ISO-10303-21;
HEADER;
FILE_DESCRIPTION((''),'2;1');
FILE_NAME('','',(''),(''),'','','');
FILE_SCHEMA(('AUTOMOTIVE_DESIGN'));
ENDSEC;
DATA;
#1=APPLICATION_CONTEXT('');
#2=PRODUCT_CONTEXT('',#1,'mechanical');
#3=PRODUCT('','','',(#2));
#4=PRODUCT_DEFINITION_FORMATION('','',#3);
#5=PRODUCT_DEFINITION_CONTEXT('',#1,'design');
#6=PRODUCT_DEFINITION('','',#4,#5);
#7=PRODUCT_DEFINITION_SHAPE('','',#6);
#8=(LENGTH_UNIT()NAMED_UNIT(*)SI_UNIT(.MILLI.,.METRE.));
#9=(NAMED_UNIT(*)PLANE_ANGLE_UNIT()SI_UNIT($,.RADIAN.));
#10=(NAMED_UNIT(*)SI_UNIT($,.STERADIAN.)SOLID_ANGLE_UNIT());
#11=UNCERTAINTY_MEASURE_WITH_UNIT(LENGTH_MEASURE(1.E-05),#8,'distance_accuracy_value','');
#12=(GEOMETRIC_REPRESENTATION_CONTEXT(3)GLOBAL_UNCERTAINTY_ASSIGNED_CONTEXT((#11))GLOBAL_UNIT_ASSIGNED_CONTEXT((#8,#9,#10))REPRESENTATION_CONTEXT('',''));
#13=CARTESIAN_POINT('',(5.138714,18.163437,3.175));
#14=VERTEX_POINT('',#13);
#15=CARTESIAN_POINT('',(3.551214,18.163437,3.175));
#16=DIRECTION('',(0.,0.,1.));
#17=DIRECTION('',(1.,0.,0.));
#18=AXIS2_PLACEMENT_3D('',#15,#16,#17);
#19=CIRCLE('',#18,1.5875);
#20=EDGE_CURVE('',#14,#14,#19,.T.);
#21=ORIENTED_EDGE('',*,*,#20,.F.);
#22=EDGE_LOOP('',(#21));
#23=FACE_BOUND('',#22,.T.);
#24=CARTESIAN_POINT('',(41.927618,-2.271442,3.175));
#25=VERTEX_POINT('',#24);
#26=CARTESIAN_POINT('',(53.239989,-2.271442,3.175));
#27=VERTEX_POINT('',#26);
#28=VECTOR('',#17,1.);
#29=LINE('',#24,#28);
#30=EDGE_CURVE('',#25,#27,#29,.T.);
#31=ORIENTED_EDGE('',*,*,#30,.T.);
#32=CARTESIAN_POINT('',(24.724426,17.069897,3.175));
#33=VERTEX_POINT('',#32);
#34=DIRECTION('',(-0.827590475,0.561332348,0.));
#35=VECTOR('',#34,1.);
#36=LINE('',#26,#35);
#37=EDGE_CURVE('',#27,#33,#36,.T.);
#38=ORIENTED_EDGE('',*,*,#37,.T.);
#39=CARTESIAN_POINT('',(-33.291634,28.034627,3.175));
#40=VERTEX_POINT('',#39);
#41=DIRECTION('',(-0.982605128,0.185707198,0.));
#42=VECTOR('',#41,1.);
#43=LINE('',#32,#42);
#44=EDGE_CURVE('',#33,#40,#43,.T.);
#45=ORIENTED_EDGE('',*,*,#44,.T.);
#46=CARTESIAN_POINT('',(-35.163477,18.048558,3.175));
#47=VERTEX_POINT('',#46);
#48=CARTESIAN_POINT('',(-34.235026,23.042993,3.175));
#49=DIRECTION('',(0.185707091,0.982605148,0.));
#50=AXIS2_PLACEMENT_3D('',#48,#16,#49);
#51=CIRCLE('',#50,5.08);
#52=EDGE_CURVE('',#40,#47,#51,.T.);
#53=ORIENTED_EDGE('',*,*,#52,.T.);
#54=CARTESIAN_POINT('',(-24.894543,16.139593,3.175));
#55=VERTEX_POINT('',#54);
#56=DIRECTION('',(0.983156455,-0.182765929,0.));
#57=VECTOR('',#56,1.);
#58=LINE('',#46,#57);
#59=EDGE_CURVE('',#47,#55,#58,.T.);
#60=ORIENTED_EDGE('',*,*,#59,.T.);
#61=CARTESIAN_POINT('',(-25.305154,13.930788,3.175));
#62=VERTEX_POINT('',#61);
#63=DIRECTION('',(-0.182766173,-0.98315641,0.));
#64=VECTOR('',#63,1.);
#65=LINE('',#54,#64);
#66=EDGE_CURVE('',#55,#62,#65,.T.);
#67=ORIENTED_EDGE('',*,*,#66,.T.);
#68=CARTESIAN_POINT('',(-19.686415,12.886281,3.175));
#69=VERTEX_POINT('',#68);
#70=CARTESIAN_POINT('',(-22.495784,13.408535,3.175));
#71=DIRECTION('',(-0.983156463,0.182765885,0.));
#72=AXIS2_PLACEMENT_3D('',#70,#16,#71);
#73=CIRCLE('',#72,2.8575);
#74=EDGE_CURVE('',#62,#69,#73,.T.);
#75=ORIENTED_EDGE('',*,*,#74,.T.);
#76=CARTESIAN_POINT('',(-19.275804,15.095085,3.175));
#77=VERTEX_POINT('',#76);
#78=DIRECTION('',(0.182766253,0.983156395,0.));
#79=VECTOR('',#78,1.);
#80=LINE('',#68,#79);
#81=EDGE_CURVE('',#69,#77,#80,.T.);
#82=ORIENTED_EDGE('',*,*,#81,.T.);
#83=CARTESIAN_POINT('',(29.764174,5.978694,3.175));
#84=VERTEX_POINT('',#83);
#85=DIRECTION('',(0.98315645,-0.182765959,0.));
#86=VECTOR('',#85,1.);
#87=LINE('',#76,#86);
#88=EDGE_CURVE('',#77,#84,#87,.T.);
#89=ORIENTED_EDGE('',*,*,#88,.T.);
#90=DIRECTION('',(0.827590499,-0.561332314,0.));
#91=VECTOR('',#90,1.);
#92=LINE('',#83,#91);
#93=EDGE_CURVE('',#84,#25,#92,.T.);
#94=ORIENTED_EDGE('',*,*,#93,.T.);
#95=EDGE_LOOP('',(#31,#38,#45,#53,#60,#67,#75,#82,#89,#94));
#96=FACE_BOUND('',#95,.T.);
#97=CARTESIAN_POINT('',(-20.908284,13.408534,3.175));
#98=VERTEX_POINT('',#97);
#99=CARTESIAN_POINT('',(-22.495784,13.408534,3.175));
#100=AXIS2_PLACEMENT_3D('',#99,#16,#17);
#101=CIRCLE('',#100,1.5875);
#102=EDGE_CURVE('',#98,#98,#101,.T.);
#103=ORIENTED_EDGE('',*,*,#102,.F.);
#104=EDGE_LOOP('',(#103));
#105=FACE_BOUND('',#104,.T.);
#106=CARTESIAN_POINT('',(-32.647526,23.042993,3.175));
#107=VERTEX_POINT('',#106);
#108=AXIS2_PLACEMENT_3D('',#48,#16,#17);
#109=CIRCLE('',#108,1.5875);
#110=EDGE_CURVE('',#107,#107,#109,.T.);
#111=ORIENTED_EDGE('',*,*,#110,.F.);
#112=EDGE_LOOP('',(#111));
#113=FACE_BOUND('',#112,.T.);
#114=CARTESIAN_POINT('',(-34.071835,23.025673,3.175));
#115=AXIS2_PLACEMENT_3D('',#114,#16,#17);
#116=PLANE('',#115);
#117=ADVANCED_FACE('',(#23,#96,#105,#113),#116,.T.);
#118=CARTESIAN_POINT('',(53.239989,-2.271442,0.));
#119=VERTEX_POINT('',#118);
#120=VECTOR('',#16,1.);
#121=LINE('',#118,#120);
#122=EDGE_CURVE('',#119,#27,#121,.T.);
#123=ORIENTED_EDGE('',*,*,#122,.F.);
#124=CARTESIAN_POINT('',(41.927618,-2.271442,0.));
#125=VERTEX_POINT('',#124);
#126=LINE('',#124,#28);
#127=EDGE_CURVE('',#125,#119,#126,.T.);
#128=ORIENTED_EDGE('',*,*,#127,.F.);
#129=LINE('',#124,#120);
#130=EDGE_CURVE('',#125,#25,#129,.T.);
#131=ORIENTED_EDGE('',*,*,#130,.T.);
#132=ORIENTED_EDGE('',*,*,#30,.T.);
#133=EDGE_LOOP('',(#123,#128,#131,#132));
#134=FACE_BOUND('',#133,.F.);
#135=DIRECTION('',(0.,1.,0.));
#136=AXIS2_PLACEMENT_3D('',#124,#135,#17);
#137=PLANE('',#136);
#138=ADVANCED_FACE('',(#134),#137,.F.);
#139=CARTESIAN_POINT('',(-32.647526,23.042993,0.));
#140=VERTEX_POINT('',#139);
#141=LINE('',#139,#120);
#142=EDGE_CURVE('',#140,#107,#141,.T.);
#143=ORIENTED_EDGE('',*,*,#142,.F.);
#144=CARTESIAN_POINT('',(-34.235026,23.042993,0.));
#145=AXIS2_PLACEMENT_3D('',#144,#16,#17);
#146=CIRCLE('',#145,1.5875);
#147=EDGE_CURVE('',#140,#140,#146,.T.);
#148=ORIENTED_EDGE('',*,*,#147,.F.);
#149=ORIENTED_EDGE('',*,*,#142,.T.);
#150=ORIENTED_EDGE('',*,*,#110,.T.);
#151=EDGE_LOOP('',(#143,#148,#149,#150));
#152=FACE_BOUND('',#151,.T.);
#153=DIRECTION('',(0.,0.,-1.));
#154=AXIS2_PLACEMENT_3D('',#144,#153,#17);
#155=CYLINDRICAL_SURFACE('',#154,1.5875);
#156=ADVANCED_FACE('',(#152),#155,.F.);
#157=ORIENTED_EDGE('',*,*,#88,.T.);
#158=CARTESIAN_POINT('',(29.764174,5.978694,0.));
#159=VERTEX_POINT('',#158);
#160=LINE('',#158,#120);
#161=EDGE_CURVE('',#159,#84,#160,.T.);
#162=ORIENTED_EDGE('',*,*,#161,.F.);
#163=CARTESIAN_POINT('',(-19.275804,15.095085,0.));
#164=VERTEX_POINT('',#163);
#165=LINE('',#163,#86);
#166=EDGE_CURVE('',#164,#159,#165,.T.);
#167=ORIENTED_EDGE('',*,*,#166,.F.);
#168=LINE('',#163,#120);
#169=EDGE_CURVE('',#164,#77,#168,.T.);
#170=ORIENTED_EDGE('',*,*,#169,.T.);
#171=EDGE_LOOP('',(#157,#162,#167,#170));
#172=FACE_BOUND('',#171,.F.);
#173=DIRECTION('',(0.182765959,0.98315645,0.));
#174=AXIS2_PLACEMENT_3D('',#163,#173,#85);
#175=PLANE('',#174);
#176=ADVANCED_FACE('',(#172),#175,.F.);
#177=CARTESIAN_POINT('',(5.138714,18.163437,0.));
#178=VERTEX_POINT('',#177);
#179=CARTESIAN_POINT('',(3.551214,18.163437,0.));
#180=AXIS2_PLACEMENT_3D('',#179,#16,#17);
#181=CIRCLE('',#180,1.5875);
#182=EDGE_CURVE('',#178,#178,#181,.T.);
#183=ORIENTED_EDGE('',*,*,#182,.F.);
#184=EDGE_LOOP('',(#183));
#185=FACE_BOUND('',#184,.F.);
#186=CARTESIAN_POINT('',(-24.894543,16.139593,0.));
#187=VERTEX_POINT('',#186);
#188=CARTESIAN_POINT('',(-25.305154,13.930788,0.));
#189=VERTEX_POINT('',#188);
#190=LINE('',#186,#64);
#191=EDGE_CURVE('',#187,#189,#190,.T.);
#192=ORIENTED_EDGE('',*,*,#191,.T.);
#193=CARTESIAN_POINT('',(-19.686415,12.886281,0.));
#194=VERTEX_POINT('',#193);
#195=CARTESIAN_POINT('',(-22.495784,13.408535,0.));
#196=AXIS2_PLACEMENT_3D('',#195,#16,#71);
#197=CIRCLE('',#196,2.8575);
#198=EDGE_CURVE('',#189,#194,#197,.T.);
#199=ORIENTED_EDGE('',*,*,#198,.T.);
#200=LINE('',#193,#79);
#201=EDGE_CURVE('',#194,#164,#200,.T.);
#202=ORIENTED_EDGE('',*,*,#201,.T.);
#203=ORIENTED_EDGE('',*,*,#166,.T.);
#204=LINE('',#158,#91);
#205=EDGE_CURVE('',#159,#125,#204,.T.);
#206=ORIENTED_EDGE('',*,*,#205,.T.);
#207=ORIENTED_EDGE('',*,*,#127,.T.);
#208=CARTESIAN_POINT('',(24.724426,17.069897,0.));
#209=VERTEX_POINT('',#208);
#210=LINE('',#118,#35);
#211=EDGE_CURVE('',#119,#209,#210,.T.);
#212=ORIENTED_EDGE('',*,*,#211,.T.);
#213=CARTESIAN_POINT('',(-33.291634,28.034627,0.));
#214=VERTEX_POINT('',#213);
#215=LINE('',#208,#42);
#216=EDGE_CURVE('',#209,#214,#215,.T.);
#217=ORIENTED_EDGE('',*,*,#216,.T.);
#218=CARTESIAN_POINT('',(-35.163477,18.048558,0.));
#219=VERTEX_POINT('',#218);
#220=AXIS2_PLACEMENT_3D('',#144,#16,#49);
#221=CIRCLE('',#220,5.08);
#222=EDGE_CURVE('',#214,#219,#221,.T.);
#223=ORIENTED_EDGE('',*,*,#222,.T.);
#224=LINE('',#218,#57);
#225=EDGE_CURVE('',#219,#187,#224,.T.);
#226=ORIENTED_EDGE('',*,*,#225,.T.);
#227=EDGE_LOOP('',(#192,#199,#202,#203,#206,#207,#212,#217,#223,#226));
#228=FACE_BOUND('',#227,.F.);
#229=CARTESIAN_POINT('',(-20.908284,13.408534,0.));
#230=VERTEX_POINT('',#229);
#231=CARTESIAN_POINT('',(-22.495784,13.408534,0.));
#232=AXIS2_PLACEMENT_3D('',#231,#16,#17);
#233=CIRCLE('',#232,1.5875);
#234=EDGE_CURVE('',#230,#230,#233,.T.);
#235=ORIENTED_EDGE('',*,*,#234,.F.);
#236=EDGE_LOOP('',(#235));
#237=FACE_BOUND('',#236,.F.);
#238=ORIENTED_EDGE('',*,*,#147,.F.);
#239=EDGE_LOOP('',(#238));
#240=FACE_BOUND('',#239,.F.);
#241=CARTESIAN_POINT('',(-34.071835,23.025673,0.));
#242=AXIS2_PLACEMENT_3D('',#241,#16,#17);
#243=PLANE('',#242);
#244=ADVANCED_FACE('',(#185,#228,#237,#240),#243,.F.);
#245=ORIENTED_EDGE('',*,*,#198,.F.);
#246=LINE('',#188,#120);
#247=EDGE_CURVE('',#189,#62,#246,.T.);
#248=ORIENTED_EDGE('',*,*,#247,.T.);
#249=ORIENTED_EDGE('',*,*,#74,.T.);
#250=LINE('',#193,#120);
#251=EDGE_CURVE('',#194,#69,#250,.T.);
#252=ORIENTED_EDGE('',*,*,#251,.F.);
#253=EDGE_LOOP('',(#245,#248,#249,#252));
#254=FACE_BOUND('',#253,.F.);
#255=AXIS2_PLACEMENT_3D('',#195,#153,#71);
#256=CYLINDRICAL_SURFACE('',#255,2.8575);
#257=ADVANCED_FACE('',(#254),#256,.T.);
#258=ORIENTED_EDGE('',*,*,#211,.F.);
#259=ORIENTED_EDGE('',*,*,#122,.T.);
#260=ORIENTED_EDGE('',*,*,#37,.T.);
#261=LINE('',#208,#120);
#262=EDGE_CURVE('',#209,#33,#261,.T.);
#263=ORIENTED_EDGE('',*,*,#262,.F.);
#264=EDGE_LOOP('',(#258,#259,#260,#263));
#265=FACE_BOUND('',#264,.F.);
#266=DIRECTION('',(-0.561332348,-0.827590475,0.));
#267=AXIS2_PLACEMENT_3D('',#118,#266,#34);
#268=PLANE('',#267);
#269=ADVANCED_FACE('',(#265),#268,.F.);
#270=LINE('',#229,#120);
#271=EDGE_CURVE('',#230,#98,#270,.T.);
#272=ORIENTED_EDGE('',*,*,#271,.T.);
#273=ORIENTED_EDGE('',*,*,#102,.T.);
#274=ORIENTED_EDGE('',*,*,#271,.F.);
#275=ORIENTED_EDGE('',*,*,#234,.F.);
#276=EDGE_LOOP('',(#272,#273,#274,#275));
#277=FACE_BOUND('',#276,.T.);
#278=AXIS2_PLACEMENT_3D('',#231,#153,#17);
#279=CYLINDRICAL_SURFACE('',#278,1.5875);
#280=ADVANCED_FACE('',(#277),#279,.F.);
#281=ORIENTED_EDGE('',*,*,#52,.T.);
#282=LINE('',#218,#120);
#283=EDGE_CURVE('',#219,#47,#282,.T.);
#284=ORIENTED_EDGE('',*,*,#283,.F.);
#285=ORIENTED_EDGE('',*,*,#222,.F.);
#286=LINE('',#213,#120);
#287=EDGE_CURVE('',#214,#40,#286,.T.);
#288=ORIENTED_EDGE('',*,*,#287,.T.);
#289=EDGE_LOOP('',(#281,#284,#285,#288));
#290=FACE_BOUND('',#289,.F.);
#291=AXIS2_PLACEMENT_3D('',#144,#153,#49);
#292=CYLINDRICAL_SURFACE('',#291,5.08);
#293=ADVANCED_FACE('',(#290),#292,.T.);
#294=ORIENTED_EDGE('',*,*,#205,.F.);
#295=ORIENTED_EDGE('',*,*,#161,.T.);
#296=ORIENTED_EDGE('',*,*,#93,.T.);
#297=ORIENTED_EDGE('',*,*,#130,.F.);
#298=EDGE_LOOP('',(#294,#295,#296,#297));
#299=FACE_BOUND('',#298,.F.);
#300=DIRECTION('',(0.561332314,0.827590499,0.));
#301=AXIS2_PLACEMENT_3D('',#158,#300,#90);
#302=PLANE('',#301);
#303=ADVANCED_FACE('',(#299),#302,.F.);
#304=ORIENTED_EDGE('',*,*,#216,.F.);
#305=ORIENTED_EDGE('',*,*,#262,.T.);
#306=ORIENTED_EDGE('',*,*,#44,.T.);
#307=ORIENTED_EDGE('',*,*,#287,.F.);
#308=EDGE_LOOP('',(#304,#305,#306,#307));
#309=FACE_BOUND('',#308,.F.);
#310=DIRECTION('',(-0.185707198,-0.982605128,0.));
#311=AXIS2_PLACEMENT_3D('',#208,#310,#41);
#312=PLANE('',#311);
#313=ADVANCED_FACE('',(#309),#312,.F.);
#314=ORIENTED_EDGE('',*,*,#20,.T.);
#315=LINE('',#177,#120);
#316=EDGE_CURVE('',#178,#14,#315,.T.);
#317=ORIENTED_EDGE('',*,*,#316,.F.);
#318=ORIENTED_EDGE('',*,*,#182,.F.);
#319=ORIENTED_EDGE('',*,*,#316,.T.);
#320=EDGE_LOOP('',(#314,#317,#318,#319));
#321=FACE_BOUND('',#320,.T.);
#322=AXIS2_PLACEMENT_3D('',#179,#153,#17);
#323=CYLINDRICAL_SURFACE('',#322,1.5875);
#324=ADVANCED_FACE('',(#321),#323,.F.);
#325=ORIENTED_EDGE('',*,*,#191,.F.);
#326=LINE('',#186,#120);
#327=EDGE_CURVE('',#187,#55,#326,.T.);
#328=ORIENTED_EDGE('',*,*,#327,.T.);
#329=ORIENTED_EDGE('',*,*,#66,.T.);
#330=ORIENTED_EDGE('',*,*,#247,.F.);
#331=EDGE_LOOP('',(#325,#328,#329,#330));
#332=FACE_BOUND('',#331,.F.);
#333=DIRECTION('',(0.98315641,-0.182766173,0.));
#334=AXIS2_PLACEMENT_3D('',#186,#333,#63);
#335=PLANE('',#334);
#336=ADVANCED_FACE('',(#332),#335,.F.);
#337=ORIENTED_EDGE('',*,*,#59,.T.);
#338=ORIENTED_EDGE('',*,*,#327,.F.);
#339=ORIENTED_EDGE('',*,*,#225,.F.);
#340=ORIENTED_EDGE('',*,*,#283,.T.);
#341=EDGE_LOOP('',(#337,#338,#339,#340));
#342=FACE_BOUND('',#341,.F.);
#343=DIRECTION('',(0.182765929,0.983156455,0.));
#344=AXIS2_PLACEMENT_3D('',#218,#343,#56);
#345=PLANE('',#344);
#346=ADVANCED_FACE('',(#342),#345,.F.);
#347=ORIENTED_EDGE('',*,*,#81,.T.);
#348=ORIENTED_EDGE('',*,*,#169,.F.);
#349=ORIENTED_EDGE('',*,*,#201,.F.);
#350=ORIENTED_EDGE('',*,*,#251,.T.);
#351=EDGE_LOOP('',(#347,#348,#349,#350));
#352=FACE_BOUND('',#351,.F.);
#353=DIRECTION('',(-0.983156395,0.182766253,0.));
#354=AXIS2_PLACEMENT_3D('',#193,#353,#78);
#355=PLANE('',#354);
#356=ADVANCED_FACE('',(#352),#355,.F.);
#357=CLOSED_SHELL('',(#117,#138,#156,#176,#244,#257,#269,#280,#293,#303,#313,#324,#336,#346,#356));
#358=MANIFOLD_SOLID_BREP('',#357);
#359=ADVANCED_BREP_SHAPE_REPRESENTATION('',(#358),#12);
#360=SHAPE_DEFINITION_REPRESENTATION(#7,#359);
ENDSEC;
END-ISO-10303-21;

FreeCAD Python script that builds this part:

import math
import FreeCAD as App
import Part
import Sketcher

V = App.Vector
Q = App.Units.Quantity

doc = App.newDocument("Part")
body = doc.addObject("PartDesign::Body", "Body")

sketch1 = doc.addObject("Sketcher::SketchObject", "Sketch")
body.addObject(sketch1)
sketch1.AttachmentSupport = (doc.XY_Plane, [""])
sketch1.MapMode = "FlatFace"
sketch1.addGeometry([
    Part.ArcOfCircle(Part.Circle(V(-34.235026, 23.042993, 0), V(0, 0, 1), 5.08), math.radians(79.29764), math.radians(259.469091)),
    Part.LineSegment(V(-35.163477, 18.048558, 0), V(-24.894543, 16.139593, 0)),
    Part.LineSegment(V(-24.894543, 16.139593, 0), V(-25.305154, 13.930788, 0)),
    Part.ArcOfCircle(Part.Circle(V(-22.495784, 13.408535, 0), V(0, 0, 1), 2.8575), math.radians(169.469094), math.radians(349.469094)),
    Part.LineSegment(V(-19.686415, 12.886281, 0), V(-19.275804, 15.095085, 0)),
    Part.LineSegment(V(-19.275804, 15.095085, 0), V(29.764174, 5.978694, 0)),
    Part.LineSegment(V(29.764174, 5.978694, 0), V(41.927618, -2.271442, 0)),
    Part.LineSegment(V(41.927618, -2.271442, 0), V(53.239989, -2.271442, 0)),
    Part.LineSegment(V(53.239989, -2.271442, 0), V(24.724426, 17.069897, 0)),
    Part.LineSegment(V(24.724426, 17.069897, 0), V(-33.291634, 28.034627, 0)),
    Part.Circle(V(-22.495784, 13.408534, 0), V(0, 0, 1), 1.5875),
    Part.Circle(V(3.551214, 18.163437, 0), V(0, 0, 1), 1.5875),
    Part.Circle(V(-34.235026, 23.042993, 0), V(0, 0, 1), 1.5875),
], False)
sketch1.addConstraint([
    Sketcher.Constraint("Tangent", 0, 2, 1, 1),
    Sketcher.Constraint("Coincident", 1, 2, 2, 1),
    Sketcher.Constraint("Tangent", 2, 2, 3, 1),
    Sketcher.Constraint("Tangent", 3, 2, 4, 1),
    Sketcher.Constraint("Coincident", 4, 2, 5, 1),
    Sketcher.Constraint("Coincident", 5, 2, 6, 1),
    Sketcher.Constraint("Coincident", 6, 2, 7, 1),
    Sketcher.Constraint("Coincident", 7, 2, 8, 1),
    Sketcher.Constraint("Coincident", 8, 2, 9, 1),
    Sketcher.Constraint("Tangent", 9, 2, 0, 1),
    Sketcher.Constraint("Horizontal", 7),
    Sketcher.Constraint("Coincident", 10, 3, 3, 3),
    Sketcher.Constraint("Coincident", 12, 3, 0, 3),
    Sketcher.Constraint("Equal", 10, 11),
    Sketcher.Constraint("Equal", 11, 12),
    Sketcher.Constraint("Perpendicular", 1, 2),
    Sketcher.Constraint("Parallel", 2, 4),
    Sketcher.Constraint("Perpendicular", 4, 5),
    Sketcher.Constraint("Parallel", 6, 8),
    Sketcher.Constraint("Equal", 2, 4),
    Sketcher.Constraint("Radius", 0, Q("0.2 in")),
    Sketcher.Constraint("Diameter", 10, Q("0.125 in")),
    Sketcher.Constraint("Radius", 3, Q("0.1125 in")),
    Sketcher.Constraint("DistanceX", 1, 2, -1, 1, Q("0.9801001 in")),
    Sketcher.Constraint("DistanceX", 7, 1, 7, 2, Q("11.312371 mm")),
    Sketcher.Constraint("DistanceX", 10, 3, 11, 3, Q("26.046998 mm")),
    Sketcher.Constraint("DistanceY", 1, 2, 0, 3, Q("6.9034 mm")),
    Sketcher.Constraint("Distance", 6, Q("14.697419 mm")),
    Sketcher.Constraint("DistanceY", -1, 1, 3, 2, Q("12.886281 mm")),
    Sketcher.Constraint("DistanceX", -1, 1, 6, 2, Q("41.927618 mm")),
    Sketcher.Constraint("DistanceY", 6, 2, -1, 1, Q("2.271442 mm")),
    Sketcher.Constraint("DistanceX", 0, 3, 3, 3, Q("11.739242 mm")),
    Sketcher.Constraint("DistanceY", 3, 3, 0, 3, Q("9.634458 mm")),
    Sketcher.Constraint("DistanceY", 0, 2, 11, 3, Q("0.114879 mm")),
    Sketcher.Constraint("DistanceX", 11, 3, 8, 2, Q("21.173212 mm")),
])
pad1 = doc.addObject("PartDesign::Pad", "Pad")
body.addObject(pad1)
pad1.Profile = sketch1
pad1.Length = Q("0.125 in")

doc.recompute()
